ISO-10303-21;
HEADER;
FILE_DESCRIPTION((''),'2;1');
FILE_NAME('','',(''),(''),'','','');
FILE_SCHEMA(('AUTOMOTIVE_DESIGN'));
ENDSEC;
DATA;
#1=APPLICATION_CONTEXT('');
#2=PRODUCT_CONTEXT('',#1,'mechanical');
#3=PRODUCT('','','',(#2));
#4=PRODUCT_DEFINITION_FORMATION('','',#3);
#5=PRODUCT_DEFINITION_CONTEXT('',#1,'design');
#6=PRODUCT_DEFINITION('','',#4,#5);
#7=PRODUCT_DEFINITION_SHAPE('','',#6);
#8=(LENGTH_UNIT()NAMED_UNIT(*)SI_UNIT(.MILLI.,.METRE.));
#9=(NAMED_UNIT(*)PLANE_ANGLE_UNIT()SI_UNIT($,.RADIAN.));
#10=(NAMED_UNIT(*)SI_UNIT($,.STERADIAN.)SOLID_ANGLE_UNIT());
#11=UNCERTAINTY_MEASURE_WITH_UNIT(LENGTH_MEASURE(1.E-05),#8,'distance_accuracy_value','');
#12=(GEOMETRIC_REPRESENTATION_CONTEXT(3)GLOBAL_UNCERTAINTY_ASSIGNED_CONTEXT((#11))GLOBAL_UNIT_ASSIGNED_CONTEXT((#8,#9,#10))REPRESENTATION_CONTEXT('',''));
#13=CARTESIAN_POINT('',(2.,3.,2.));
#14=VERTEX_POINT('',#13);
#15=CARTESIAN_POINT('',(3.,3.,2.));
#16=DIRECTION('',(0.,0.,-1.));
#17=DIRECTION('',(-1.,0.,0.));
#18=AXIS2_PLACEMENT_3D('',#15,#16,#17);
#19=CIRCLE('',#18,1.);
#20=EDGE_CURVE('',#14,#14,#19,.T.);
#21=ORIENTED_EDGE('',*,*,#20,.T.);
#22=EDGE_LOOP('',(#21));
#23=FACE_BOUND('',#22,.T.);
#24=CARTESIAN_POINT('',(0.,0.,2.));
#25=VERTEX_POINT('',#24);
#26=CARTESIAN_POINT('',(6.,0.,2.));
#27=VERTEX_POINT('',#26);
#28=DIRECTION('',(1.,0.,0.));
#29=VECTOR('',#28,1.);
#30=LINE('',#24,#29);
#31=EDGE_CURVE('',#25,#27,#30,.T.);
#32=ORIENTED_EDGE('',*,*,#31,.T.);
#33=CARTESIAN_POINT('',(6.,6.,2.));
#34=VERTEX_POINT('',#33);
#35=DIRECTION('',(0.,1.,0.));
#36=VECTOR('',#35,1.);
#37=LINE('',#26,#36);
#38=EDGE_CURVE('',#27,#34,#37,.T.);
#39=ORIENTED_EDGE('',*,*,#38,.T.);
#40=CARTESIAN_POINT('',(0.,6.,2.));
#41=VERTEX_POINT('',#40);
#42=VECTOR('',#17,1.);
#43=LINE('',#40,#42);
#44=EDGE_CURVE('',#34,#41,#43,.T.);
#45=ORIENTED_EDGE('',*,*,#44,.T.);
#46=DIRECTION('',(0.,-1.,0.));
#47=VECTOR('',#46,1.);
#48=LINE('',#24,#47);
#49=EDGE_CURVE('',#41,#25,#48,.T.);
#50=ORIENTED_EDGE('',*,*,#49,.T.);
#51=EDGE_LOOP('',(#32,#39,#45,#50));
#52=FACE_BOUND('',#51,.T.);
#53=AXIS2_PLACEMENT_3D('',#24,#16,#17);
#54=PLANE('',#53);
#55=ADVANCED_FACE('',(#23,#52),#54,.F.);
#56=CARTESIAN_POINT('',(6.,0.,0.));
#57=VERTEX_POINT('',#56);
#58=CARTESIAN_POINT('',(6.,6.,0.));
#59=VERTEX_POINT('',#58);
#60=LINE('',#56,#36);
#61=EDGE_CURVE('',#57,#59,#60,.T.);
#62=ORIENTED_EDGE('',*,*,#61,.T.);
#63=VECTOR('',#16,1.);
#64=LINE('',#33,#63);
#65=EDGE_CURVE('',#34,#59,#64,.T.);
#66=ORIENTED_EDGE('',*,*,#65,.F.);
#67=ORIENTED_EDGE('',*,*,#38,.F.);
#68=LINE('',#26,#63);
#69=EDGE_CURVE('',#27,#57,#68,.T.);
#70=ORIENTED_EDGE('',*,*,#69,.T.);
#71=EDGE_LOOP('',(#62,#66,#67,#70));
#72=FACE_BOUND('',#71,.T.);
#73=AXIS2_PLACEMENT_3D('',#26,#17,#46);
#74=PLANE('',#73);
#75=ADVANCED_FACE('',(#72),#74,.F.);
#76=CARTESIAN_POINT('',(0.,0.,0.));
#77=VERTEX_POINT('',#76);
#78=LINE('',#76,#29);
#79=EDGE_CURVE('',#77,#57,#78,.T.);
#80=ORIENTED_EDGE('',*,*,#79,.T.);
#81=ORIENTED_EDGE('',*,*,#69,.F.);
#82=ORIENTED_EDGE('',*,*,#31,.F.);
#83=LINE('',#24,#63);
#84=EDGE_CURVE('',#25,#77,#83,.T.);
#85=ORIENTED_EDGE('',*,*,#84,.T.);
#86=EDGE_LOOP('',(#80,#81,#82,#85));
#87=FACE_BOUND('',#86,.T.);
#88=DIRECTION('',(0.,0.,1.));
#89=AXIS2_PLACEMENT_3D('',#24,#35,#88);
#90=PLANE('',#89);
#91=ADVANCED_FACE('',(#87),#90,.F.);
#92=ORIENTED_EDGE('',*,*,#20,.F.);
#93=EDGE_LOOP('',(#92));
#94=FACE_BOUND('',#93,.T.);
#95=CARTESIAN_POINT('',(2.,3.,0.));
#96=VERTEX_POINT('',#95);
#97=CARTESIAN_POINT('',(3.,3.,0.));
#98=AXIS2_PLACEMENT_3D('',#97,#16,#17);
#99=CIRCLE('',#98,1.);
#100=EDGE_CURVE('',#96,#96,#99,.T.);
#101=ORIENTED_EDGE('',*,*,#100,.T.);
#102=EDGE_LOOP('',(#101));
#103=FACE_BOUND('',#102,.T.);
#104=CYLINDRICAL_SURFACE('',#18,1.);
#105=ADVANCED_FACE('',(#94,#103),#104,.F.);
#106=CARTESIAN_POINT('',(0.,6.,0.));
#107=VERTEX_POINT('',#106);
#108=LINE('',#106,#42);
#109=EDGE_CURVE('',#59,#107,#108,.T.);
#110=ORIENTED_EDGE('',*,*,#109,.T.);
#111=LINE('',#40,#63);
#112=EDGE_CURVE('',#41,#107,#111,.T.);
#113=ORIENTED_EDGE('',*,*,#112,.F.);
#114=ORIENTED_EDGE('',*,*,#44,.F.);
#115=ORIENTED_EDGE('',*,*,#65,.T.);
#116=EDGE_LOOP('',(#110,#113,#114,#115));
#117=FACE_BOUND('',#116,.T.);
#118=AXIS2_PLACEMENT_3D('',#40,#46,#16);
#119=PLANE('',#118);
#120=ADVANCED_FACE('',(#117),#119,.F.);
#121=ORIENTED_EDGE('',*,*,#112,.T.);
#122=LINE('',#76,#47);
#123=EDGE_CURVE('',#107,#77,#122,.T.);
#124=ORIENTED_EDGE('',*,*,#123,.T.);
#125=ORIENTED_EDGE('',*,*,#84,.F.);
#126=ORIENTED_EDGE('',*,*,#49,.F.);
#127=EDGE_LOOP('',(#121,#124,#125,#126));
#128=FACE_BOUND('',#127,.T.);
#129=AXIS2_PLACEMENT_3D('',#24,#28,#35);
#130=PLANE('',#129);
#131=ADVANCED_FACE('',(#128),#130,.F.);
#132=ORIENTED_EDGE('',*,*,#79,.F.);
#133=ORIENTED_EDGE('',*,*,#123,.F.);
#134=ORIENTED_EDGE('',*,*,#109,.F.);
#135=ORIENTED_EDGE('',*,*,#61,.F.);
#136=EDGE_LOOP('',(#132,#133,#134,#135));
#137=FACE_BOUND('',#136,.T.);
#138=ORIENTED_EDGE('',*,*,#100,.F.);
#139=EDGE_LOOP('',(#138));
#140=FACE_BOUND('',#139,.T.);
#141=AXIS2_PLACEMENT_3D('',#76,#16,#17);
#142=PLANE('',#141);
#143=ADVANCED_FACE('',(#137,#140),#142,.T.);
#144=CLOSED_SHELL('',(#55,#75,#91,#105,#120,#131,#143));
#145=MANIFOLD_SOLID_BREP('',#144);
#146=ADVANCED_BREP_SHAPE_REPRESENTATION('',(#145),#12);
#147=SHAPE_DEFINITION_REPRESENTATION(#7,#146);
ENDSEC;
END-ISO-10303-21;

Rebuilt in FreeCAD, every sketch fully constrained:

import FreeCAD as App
import Part
import Sketcher

doc = App.newDocument("Part")
params = doc.addObject("Spreadsheet::Sheet", "Params")
for row, (alias, value) in enumerate([
    ("sketch1_width", "6 mm"),
    ("pad1_length", "2 mm"),
    ("sketch2_diameter", "2 mm"),
], start=1):
    params.set(f"A{row}", alias)
    params.set(f"B{row}", "=" + value)
    params.setAlias(f"B{row}", alias)

body = doc.addObject("PartDesign::Body", "Body")

sketch1 = body.newObject("Sketcher::SketchObject", "Sketch")
sketch1.AttachmentSupport = (doc.getObject("XY_Plane"), [""])
sketch1.MapMode = "FlatFace"
sketch1.addGeometry([
    Part.LineSegment(App.Vector(0, 6, 0), App.Vector(0, 0, 0)),
    Part.LineSegment(App.Vector(0, 0, 0), App.Vector(6, 0, 0)),
    Part.LineSegment(App.Vector(6, 0, 0), App.Vector(6, 6, 0)),
    Part.LineSegment(App.Vector(6, 6, 0), App.Vector(0, 6, 0)),
], False)
sketch1.addConstraint([
    Sketcher.Constraint("Coincident", 0, 2, 1, 1),
    Sketcher.Constraint("Coincident", 1, 2, 2, 1),
    Sketcher.Constraint("Coincident", 2, 2, 3, 1),
    Sketcher.Constraint("Coincident", 3, 2, 0, 1),
    Sketcher.Constraint("Vertical", 0),
    Sketcher.Constraint("Horizontal", 1),
    Sketcher.Constraint("Vertical", 2),
    Sketcher.Constraint("Horizontal", 3),
    Sketcher.Constraint("Coincident", 0, 2, -1, 1),
    Sketcher.Constraint("Equal", 3, 0),
    Sketcher.Constraint("DistanceX", 1, 1, 1, 2, 6.0),
])
sketch1.setExpression("Constraints[10]", "Params.sketch1_width")
pad1 = body.newObject("PartDesign::Pad", "Pad")
pad1.Profile = sketch1
pad1.setExpression("Length", "Params.pad1_length")

sketch2 = body.newObject("Sketcher::SketchObject", "Sketch001")
sketch2.AttachmentSupport = (doc.getObject("XY_Plane"), [""])
sketch2.MapMode = "FlatFace"
sketch2.addGeometry(Part.Circle(App.Vector(3, 3, 0), App.Vector(0, 0, 1), 1), False)
sketch2.addConstraint([
    Sketcher.Constraint("Diameter", 0, 2.0),
    Sketcher.Constraint("DistanceX", -1, 1, 0, 3, 3.0),
    Sketcher.Constraint("DistanceY", -1, 1, 0, 3, 3.0),
])
sketch2.setExpression("Constraints[0]", "Params.sketch2_diameter")
pocket1 = body.newObject("PartDesign::Pocket", "Pocket")
pocket1.Profile = sketch2
pocket1.Type = "ThroughAll"
pocket1.Reversed = True

doc.recompute()
